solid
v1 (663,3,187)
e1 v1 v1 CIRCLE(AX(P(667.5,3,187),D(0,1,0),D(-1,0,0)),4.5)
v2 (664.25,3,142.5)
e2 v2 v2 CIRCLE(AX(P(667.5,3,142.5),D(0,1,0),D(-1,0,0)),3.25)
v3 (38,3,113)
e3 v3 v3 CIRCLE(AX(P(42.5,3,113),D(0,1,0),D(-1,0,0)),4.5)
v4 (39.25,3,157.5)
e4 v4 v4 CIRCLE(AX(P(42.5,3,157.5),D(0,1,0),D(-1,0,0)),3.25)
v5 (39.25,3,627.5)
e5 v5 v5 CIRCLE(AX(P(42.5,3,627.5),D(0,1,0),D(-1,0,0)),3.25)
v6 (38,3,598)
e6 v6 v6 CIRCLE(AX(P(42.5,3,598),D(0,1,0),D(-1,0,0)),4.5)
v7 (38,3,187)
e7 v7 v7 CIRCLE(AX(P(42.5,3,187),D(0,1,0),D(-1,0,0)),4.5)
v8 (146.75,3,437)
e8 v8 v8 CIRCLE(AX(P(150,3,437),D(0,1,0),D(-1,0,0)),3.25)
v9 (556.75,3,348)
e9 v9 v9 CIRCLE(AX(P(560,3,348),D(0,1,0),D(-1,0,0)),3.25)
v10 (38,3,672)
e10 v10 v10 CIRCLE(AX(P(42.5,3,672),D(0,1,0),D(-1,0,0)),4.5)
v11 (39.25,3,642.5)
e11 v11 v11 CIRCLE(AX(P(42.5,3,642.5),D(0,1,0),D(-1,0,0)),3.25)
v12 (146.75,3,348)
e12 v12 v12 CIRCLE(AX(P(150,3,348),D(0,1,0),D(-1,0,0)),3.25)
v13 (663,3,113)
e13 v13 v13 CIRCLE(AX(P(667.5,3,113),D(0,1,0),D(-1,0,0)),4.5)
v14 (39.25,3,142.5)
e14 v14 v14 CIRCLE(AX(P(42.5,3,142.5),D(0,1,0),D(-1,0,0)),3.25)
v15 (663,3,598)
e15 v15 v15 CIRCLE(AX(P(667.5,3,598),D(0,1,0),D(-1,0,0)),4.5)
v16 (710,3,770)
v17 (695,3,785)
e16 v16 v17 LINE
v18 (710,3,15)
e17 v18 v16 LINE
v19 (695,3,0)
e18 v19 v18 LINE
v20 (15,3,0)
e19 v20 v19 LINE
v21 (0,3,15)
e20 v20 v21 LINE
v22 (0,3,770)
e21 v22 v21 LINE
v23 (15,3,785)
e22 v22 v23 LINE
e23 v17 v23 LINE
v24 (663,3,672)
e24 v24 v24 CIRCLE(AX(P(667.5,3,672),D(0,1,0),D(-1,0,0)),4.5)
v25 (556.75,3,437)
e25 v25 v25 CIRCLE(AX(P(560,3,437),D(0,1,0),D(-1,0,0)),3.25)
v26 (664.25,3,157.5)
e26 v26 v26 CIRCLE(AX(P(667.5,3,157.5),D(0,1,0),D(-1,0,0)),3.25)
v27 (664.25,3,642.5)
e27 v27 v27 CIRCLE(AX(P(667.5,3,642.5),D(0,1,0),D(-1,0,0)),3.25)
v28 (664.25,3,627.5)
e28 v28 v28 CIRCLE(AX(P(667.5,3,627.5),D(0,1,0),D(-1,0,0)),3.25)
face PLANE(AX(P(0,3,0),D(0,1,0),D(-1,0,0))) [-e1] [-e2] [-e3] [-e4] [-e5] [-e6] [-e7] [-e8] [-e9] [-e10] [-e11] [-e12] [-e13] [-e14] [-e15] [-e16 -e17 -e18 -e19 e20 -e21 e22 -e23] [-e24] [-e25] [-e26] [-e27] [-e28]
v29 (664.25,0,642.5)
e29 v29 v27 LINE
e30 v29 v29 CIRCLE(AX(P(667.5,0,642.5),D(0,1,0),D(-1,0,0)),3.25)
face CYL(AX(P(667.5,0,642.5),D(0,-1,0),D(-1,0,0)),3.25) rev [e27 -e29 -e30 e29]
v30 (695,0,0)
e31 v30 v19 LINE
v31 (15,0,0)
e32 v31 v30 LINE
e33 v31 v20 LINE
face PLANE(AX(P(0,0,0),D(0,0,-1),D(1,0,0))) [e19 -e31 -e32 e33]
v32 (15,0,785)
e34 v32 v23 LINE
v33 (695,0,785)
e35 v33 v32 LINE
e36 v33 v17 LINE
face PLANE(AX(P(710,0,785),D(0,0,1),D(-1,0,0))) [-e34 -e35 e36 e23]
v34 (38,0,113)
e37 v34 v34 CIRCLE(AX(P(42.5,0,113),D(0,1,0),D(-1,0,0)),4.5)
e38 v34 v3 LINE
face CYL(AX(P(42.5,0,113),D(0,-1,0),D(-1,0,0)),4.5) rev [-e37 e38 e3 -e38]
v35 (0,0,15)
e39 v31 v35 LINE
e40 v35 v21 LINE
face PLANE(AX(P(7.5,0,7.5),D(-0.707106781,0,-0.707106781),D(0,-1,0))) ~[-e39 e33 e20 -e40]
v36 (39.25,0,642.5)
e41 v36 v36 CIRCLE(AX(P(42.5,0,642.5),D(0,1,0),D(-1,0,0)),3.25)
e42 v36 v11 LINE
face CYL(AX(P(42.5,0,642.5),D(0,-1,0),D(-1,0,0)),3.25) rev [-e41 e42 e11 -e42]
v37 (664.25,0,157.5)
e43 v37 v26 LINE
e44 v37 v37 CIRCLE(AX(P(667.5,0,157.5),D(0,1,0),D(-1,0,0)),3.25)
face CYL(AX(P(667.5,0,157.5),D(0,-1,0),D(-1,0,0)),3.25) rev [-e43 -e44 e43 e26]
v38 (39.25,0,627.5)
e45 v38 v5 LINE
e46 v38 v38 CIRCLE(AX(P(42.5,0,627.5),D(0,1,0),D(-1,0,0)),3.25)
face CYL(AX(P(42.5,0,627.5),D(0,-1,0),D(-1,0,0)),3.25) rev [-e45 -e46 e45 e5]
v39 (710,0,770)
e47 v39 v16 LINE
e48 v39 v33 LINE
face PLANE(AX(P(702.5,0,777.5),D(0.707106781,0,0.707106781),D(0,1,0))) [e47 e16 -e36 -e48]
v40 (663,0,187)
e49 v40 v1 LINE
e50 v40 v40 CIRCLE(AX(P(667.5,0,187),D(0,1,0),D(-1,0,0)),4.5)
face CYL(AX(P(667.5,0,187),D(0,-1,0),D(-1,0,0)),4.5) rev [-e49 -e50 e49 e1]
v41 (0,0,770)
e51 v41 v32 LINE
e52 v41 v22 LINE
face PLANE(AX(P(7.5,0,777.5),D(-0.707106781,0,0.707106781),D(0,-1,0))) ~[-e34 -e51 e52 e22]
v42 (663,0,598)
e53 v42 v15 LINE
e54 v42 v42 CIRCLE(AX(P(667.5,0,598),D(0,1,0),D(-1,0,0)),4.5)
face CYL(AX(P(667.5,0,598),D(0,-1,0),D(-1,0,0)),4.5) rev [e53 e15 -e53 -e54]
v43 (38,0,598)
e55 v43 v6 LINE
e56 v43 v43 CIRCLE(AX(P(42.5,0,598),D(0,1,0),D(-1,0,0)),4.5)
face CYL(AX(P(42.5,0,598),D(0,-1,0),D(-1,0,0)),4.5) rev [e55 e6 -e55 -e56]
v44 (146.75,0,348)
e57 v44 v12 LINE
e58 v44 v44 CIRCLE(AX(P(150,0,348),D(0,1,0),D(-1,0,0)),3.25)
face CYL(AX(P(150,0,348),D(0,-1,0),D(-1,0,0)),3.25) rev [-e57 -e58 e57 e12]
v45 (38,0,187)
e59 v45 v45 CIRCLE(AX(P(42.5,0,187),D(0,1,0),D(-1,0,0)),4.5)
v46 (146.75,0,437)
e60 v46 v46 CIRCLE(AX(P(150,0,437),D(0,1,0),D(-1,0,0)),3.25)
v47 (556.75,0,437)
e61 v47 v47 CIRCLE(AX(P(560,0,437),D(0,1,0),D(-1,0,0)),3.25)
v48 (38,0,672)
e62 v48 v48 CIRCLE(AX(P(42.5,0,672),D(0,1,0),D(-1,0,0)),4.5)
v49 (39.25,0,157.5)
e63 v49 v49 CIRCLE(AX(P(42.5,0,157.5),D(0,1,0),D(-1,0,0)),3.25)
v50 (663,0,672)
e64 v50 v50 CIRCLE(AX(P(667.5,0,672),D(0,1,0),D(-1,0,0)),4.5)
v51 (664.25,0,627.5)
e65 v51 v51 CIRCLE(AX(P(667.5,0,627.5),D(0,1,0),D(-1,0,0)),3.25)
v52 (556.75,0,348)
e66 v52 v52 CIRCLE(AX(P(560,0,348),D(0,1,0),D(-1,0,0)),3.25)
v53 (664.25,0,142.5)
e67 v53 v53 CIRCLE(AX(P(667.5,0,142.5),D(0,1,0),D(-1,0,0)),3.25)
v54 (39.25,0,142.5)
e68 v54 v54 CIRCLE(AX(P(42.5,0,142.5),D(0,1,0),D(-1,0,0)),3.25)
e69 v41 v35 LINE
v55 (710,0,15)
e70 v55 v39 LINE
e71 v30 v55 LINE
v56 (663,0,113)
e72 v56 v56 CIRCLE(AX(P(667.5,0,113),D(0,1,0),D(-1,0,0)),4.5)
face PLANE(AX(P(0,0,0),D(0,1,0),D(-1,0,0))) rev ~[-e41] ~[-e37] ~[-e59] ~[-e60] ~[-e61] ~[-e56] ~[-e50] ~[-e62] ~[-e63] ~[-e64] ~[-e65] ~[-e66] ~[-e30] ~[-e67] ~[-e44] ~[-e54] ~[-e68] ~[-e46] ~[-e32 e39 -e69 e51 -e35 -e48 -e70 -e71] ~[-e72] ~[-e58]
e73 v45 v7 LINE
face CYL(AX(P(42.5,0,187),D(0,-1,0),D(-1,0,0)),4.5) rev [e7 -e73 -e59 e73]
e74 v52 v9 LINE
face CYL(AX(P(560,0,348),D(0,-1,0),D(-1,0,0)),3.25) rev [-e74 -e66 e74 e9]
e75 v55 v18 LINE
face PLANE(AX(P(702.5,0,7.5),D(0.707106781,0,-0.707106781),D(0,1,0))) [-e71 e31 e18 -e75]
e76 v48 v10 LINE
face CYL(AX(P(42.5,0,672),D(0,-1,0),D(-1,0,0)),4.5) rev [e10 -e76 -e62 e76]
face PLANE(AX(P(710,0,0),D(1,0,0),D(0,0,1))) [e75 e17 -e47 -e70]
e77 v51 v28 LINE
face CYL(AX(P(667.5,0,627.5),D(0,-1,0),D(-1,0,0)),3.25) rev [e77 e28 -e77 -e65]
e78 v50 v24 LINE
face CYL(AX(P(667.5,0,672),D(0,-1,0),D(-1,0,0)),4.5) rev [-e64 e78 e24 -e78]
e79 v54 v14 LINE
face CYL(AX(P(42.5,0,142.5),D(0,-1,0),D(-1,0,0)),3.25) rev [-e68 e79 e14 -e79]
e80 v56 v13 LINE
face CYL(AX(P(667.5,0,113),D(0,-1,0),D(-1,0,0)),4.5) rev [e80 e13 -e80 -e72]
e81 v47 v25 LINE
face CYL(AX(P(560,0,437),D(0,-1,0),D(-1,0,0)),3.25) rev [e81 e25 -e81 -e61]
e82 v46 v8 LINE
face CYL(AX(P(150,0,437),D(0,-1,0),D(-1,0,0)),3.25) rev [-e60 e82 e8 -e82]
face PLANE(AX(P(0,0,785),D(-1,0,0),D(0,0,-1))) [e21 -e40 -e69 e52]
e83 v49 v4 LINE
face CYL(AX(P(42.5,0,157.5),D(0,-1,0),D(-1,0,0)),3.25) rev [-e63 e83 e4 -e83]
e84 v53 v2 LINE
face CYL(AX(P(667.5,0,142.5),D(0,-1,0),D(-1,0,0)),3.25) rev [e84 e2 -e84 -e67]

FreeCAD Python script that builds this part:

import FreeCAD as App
import Part
import Sketcher

V = App.Vector
Q = App.Units.Quantity


def edges_at(feature, points):
    """Names of the edges that pass closest to the given points."""
    edges = feature.Shape.Edges
    near = lambda p: min(range(len(edges)), key=lambda i: edges[i].distToShape(Part.Vertex(*p))[0])
    return sorted({f"Edge{near(p) + 1}" for p in points})


def add_polygon(sketch, points):
    """Adds a closed chain of lines whose ends are joined by coincident constraints."""
    first, n = sketch.GeometryCount, len(points)
    for a, b in zip(points, points[1:] + points[:1]):
        sketch.addGeometry(Part.LineSegment(App.Vector(*a, 0), App.Vector(*b, 0)), False)
    for i in range(n):
        sketch.addConstraint(Sketcher.Constraint("Coincident", first + i, 2, first + (i + 1) % n, 1))

doc = App.newDocument("Part")
body = doc.addObject("PartDesign::Body", "Body")

sketch1 = body.newObject("Sketcher::SketchObject", "Sketch")
sketch1.AttachmentSupport = (doc.getObject("XZ_Plane"), [""])
sketch1.MapMode = "FlatFace"
add_polygon(sketch1, [(710, 0), (0, 0), (0, 785), (710, 785)])
sketch1.addGeometry(Part.Circle(V(667.5, 113, 0), V(0, 0, 1), 4.5), False)
sketch1.addGeometry(Part.Circle(V(667.5, 142.5, 0), V(0, 0, 1), 3.2), False)
sketch1.addGeometry(Part.Circle(V(667.5, 157.5, 0), V(0, 0, 1), 3.2), False)
sketch1.addGeometry(Part.Circle(V(667.5, 187, 0), V(0, 0, 1), 4.5), False)
sketch1.addGeometry(Part.Circle(V(560, 348, 0), V(0, 0, 1), 3.2), False)
sketch1.addGeometry(Part.Circle(V(42.5, 113, 0), V(0, 0, 1), 4.5), False)
sketch1.addGeometry(Part.Circle(V(42.5, 142.5, 0), V(0, 0, 1), 3.2), False)
sketch1.addGeometry(Part.Circle(V(42.5, 157.5, 0), V(0, 0, 1), 3.2), False)
sketch1.addGeometry(Part.Circle(V(42.5, 187, 0), V(0, 0, 1), 4.5), False)
sketch1.addGeometry(Part.Circle(V(150, 348, 0), V(0, 0, 1), 3.2), False)
sketch1.addGeometry(Part.Circle(V(560, 437, 0), V(0, 0, 1), 3.2), False)
sketch1.addGeometry(Part.Circle(V(667.5, 598, 0), V(0, 0, 1), 4.5), False)
sketch1.addGeometry(Part.Circle(V(667.5, 627.5, 0), V(0, 0, 1), 3.2), False)
sketch1.addGeometry(Part.Circle(V(667.5, 642.5, 0), V(0, 0, 1), 3.2), False)
sketch1.addGeometry(Part.Circle(V(667.5, 672, 0), V(0, 0, 1), 4.5), False)
sketch1.addGeometry(Part.Circle(V(150, 437, 0), V(0, 0, 1), 3.2), False)
sketch1.addGeometry(Part.Circle(V(42.5, 598, 0), V(0, 0, 1), 4.5), False)
sketch1.addGeometry(Part.Circle(V(42.5, 627.5, 0), V(0, 0, 1), 3.2), False)
sketch1.addGeometry(Part.Circle(V(42.5, 642.5, 0), V(0, 0, 1), 3.2), False)
sketch1.addGeometry(Part.Circle(V(42.5, 672, 0), V(0, 0, 1), 4.5), False)
sketch1.addConstraint([
    Sketcher.Constraint("Horizontal", 0),
    Sketcher.Constraint("Vertical", 1),
    Sketcher.Constraint("Horizontal", 2),
    Sketcher.Constraint("Vertical", 3),
    Sketcher.Constraint("Coincident", 0, 2, -1, 1),
    Sketcher.Constraint("Equal", 5, 6),
    Sketcher.Constraint("Equal", 4, 7),
    Sketcher.Constraint("Equal", 6, 8),
    Sketcher.Constraint("Equal", 7, 9),
    Sketcher.Constraint("Equal", 8, 10),
    Sketcher.Constraint("Equal", 10, 11),
    Sketcher.Constraint("Equal", 9, 12),
    Sketcher.Constraint("Equal", 11, 13),
    Sketcher.Constraint("Equal", 13, 14),
    Sketcher.Constraint("Equal", 12, 15),
    Sketcher.Constraint("Equal", 14, 16),
    Sketcher.Constraint("Equal", 16, 17),
    Sketcher.Constraint("Equal", 15, 18),
    Sketcher.Constraint("Equal", 17, 19),
    Sketcher.Constraint("Equal", 18, 20),
    Sketcher.Constraint("Equal", 19, 21),
    Sketcher.Constraint("Equal", 21, 22),
    Sketcher.Constraint("Equal", 20, 23),
    Sketcher.Constraint("Horizontal", 4, 3, 9, 3),
    Sketcher.Constraint("Horizontal", 5, 3, 10, 3),
    Sketcher.Constraint("Horizontal", 6, 3, 11, 3),
    Sketcher.Constraint("Horizontal", 7, 3, 12, 3),
    Sketcher.Constraint("Horizontal", 8, 3, 13, 3),
    Sketcher.Constraint("Horizontal", 14, 3, 19, 3),
    Sketcher.Constraint("Horizontal", 15, 3, 20, 3),
    Sketcher.Constraint("Horizontal", 16, 3, 21, 3),
    Sketcher.Constraint("Horizontal", 17, 3, 22, 3),
    Sketcher.Constraint("Horizontal", 18, 3, 23, 3),
    Sketcher.Constraint("Vertical", 4, 3, 5, 3),
    Sketcher.Constraint("Vertical", 5, 3, 6, 3),
    Sketcher.Constraint("Vertical", 6, 3, 7, 3),
    Sketcher.Constraint("Vertical", 9, 3, 10, 3),
    Sketcher.Constraint("Vertical", 10, 3, 11, 3),
    Sketcher.Constraint("Vertical", 11, 3, 12, 3),
    Sketcher.Constraint("Vertical", 8, 3, 14, 3),
    Sketcher.Constraint("Vertical", 7, 3, 15, 3),
    Sketcher.Constraint("Vertical", 15, 3, 16, 3),
    Sketcher.Constraint("Vertical", 16, 3, 17, 3),
    Sketcher.Constraint("Vertical", 17, 3, 18, 3),
    Sketcher.Constraint("Vertical", 13, 3, 19, 3),
    Sketcher.Constraint("Vertical", 12, 3, 20, 3),
    Sketcher.Constraint("Vertical", 20, 3, 21, 3),
    Sketcher.Constraint("Vertical", 21, 3, 22, 3),
    Sketcher.Constraint("Vertical", 22, 3, 23, 3),
    Sketcher.Constraint("Diameter", 4, Q("9 mm")),
    Sketcher.Constraint("Diameter", 5, Q("6.5 mm")),
    Sketcher.Constraint("DistanceX", 0, 2, 0, 1, Q("710 mm")),
    Sketcher.Constraint("DistanceY", 1, 1, 1, 2, Q("785 mm")),
    Sketcher.Constraint("DistanceX", -1, 1, 13, 3, Q("150 mm")),
    Sketcher.Constraint("DistanceX", 14, 3, 2, 2, Q("150 mm")),
    Sketcher.Constraint("DistanceX", -1, 1, 9, 3, Q("42.5 mm")),
    Sketcher.Constraint("DistanceY", 4, 3, 6, 3, Q("44.5 mm")),
    Sketcher.Constraint("DistanceY", 5, 3, 7, 3, Q("44.5 mm")),
    Sketcher.Constraint("DistanceY", 15, 3, 17, 3, Q("44.5 mm")),
    Sketcher.Constraint("DistanceY", 16, 3, 18, 3, Q("44.5 mm")),
    Sketcher.Constraint("DistanceX", 18, 3, 2, 2, Q("42.5 mm")),
    Sketcher.Constraint("DistanceY", -1, 1, 4, 3, Q("113 mm")),
    Sketcher.Constraint("DistanceY", -1, 1, 7, 3, Q("187 mm")),
    Sketcher.Constraint("DistanceY", -1, 1, 8, 3, Q("348 mm")),
    Sketcher.Constraint("DistanceY", -1, 1, 14, 3, Q("437 mm")),
    Sketcher.Constraint("DistanceY", -1, 1, 15, 3, Q("598 mm")),
    Sketcher.Constraint("DistanceY", -1, 1, 18, 3, Q("672 mm")),
])
pad1 = body.newObject("PartDesign::Pad", "Pad")
pad1.Profile = sketch1
pad1.Length = 3
pad1.Reversed = True
doc.recompute()

chamfer = body.newObject("PartDesign::Chamfer", "Chamfer")
chamfer.Base = (pad1, edges_at(pad1, [
    (0, 1.5, 785),
    (710, 1.5, 785),
    (710, 1.5, 0),
    (0, 1.5, 0),
]))
chamfer.Size = 15

doc.recompute()
